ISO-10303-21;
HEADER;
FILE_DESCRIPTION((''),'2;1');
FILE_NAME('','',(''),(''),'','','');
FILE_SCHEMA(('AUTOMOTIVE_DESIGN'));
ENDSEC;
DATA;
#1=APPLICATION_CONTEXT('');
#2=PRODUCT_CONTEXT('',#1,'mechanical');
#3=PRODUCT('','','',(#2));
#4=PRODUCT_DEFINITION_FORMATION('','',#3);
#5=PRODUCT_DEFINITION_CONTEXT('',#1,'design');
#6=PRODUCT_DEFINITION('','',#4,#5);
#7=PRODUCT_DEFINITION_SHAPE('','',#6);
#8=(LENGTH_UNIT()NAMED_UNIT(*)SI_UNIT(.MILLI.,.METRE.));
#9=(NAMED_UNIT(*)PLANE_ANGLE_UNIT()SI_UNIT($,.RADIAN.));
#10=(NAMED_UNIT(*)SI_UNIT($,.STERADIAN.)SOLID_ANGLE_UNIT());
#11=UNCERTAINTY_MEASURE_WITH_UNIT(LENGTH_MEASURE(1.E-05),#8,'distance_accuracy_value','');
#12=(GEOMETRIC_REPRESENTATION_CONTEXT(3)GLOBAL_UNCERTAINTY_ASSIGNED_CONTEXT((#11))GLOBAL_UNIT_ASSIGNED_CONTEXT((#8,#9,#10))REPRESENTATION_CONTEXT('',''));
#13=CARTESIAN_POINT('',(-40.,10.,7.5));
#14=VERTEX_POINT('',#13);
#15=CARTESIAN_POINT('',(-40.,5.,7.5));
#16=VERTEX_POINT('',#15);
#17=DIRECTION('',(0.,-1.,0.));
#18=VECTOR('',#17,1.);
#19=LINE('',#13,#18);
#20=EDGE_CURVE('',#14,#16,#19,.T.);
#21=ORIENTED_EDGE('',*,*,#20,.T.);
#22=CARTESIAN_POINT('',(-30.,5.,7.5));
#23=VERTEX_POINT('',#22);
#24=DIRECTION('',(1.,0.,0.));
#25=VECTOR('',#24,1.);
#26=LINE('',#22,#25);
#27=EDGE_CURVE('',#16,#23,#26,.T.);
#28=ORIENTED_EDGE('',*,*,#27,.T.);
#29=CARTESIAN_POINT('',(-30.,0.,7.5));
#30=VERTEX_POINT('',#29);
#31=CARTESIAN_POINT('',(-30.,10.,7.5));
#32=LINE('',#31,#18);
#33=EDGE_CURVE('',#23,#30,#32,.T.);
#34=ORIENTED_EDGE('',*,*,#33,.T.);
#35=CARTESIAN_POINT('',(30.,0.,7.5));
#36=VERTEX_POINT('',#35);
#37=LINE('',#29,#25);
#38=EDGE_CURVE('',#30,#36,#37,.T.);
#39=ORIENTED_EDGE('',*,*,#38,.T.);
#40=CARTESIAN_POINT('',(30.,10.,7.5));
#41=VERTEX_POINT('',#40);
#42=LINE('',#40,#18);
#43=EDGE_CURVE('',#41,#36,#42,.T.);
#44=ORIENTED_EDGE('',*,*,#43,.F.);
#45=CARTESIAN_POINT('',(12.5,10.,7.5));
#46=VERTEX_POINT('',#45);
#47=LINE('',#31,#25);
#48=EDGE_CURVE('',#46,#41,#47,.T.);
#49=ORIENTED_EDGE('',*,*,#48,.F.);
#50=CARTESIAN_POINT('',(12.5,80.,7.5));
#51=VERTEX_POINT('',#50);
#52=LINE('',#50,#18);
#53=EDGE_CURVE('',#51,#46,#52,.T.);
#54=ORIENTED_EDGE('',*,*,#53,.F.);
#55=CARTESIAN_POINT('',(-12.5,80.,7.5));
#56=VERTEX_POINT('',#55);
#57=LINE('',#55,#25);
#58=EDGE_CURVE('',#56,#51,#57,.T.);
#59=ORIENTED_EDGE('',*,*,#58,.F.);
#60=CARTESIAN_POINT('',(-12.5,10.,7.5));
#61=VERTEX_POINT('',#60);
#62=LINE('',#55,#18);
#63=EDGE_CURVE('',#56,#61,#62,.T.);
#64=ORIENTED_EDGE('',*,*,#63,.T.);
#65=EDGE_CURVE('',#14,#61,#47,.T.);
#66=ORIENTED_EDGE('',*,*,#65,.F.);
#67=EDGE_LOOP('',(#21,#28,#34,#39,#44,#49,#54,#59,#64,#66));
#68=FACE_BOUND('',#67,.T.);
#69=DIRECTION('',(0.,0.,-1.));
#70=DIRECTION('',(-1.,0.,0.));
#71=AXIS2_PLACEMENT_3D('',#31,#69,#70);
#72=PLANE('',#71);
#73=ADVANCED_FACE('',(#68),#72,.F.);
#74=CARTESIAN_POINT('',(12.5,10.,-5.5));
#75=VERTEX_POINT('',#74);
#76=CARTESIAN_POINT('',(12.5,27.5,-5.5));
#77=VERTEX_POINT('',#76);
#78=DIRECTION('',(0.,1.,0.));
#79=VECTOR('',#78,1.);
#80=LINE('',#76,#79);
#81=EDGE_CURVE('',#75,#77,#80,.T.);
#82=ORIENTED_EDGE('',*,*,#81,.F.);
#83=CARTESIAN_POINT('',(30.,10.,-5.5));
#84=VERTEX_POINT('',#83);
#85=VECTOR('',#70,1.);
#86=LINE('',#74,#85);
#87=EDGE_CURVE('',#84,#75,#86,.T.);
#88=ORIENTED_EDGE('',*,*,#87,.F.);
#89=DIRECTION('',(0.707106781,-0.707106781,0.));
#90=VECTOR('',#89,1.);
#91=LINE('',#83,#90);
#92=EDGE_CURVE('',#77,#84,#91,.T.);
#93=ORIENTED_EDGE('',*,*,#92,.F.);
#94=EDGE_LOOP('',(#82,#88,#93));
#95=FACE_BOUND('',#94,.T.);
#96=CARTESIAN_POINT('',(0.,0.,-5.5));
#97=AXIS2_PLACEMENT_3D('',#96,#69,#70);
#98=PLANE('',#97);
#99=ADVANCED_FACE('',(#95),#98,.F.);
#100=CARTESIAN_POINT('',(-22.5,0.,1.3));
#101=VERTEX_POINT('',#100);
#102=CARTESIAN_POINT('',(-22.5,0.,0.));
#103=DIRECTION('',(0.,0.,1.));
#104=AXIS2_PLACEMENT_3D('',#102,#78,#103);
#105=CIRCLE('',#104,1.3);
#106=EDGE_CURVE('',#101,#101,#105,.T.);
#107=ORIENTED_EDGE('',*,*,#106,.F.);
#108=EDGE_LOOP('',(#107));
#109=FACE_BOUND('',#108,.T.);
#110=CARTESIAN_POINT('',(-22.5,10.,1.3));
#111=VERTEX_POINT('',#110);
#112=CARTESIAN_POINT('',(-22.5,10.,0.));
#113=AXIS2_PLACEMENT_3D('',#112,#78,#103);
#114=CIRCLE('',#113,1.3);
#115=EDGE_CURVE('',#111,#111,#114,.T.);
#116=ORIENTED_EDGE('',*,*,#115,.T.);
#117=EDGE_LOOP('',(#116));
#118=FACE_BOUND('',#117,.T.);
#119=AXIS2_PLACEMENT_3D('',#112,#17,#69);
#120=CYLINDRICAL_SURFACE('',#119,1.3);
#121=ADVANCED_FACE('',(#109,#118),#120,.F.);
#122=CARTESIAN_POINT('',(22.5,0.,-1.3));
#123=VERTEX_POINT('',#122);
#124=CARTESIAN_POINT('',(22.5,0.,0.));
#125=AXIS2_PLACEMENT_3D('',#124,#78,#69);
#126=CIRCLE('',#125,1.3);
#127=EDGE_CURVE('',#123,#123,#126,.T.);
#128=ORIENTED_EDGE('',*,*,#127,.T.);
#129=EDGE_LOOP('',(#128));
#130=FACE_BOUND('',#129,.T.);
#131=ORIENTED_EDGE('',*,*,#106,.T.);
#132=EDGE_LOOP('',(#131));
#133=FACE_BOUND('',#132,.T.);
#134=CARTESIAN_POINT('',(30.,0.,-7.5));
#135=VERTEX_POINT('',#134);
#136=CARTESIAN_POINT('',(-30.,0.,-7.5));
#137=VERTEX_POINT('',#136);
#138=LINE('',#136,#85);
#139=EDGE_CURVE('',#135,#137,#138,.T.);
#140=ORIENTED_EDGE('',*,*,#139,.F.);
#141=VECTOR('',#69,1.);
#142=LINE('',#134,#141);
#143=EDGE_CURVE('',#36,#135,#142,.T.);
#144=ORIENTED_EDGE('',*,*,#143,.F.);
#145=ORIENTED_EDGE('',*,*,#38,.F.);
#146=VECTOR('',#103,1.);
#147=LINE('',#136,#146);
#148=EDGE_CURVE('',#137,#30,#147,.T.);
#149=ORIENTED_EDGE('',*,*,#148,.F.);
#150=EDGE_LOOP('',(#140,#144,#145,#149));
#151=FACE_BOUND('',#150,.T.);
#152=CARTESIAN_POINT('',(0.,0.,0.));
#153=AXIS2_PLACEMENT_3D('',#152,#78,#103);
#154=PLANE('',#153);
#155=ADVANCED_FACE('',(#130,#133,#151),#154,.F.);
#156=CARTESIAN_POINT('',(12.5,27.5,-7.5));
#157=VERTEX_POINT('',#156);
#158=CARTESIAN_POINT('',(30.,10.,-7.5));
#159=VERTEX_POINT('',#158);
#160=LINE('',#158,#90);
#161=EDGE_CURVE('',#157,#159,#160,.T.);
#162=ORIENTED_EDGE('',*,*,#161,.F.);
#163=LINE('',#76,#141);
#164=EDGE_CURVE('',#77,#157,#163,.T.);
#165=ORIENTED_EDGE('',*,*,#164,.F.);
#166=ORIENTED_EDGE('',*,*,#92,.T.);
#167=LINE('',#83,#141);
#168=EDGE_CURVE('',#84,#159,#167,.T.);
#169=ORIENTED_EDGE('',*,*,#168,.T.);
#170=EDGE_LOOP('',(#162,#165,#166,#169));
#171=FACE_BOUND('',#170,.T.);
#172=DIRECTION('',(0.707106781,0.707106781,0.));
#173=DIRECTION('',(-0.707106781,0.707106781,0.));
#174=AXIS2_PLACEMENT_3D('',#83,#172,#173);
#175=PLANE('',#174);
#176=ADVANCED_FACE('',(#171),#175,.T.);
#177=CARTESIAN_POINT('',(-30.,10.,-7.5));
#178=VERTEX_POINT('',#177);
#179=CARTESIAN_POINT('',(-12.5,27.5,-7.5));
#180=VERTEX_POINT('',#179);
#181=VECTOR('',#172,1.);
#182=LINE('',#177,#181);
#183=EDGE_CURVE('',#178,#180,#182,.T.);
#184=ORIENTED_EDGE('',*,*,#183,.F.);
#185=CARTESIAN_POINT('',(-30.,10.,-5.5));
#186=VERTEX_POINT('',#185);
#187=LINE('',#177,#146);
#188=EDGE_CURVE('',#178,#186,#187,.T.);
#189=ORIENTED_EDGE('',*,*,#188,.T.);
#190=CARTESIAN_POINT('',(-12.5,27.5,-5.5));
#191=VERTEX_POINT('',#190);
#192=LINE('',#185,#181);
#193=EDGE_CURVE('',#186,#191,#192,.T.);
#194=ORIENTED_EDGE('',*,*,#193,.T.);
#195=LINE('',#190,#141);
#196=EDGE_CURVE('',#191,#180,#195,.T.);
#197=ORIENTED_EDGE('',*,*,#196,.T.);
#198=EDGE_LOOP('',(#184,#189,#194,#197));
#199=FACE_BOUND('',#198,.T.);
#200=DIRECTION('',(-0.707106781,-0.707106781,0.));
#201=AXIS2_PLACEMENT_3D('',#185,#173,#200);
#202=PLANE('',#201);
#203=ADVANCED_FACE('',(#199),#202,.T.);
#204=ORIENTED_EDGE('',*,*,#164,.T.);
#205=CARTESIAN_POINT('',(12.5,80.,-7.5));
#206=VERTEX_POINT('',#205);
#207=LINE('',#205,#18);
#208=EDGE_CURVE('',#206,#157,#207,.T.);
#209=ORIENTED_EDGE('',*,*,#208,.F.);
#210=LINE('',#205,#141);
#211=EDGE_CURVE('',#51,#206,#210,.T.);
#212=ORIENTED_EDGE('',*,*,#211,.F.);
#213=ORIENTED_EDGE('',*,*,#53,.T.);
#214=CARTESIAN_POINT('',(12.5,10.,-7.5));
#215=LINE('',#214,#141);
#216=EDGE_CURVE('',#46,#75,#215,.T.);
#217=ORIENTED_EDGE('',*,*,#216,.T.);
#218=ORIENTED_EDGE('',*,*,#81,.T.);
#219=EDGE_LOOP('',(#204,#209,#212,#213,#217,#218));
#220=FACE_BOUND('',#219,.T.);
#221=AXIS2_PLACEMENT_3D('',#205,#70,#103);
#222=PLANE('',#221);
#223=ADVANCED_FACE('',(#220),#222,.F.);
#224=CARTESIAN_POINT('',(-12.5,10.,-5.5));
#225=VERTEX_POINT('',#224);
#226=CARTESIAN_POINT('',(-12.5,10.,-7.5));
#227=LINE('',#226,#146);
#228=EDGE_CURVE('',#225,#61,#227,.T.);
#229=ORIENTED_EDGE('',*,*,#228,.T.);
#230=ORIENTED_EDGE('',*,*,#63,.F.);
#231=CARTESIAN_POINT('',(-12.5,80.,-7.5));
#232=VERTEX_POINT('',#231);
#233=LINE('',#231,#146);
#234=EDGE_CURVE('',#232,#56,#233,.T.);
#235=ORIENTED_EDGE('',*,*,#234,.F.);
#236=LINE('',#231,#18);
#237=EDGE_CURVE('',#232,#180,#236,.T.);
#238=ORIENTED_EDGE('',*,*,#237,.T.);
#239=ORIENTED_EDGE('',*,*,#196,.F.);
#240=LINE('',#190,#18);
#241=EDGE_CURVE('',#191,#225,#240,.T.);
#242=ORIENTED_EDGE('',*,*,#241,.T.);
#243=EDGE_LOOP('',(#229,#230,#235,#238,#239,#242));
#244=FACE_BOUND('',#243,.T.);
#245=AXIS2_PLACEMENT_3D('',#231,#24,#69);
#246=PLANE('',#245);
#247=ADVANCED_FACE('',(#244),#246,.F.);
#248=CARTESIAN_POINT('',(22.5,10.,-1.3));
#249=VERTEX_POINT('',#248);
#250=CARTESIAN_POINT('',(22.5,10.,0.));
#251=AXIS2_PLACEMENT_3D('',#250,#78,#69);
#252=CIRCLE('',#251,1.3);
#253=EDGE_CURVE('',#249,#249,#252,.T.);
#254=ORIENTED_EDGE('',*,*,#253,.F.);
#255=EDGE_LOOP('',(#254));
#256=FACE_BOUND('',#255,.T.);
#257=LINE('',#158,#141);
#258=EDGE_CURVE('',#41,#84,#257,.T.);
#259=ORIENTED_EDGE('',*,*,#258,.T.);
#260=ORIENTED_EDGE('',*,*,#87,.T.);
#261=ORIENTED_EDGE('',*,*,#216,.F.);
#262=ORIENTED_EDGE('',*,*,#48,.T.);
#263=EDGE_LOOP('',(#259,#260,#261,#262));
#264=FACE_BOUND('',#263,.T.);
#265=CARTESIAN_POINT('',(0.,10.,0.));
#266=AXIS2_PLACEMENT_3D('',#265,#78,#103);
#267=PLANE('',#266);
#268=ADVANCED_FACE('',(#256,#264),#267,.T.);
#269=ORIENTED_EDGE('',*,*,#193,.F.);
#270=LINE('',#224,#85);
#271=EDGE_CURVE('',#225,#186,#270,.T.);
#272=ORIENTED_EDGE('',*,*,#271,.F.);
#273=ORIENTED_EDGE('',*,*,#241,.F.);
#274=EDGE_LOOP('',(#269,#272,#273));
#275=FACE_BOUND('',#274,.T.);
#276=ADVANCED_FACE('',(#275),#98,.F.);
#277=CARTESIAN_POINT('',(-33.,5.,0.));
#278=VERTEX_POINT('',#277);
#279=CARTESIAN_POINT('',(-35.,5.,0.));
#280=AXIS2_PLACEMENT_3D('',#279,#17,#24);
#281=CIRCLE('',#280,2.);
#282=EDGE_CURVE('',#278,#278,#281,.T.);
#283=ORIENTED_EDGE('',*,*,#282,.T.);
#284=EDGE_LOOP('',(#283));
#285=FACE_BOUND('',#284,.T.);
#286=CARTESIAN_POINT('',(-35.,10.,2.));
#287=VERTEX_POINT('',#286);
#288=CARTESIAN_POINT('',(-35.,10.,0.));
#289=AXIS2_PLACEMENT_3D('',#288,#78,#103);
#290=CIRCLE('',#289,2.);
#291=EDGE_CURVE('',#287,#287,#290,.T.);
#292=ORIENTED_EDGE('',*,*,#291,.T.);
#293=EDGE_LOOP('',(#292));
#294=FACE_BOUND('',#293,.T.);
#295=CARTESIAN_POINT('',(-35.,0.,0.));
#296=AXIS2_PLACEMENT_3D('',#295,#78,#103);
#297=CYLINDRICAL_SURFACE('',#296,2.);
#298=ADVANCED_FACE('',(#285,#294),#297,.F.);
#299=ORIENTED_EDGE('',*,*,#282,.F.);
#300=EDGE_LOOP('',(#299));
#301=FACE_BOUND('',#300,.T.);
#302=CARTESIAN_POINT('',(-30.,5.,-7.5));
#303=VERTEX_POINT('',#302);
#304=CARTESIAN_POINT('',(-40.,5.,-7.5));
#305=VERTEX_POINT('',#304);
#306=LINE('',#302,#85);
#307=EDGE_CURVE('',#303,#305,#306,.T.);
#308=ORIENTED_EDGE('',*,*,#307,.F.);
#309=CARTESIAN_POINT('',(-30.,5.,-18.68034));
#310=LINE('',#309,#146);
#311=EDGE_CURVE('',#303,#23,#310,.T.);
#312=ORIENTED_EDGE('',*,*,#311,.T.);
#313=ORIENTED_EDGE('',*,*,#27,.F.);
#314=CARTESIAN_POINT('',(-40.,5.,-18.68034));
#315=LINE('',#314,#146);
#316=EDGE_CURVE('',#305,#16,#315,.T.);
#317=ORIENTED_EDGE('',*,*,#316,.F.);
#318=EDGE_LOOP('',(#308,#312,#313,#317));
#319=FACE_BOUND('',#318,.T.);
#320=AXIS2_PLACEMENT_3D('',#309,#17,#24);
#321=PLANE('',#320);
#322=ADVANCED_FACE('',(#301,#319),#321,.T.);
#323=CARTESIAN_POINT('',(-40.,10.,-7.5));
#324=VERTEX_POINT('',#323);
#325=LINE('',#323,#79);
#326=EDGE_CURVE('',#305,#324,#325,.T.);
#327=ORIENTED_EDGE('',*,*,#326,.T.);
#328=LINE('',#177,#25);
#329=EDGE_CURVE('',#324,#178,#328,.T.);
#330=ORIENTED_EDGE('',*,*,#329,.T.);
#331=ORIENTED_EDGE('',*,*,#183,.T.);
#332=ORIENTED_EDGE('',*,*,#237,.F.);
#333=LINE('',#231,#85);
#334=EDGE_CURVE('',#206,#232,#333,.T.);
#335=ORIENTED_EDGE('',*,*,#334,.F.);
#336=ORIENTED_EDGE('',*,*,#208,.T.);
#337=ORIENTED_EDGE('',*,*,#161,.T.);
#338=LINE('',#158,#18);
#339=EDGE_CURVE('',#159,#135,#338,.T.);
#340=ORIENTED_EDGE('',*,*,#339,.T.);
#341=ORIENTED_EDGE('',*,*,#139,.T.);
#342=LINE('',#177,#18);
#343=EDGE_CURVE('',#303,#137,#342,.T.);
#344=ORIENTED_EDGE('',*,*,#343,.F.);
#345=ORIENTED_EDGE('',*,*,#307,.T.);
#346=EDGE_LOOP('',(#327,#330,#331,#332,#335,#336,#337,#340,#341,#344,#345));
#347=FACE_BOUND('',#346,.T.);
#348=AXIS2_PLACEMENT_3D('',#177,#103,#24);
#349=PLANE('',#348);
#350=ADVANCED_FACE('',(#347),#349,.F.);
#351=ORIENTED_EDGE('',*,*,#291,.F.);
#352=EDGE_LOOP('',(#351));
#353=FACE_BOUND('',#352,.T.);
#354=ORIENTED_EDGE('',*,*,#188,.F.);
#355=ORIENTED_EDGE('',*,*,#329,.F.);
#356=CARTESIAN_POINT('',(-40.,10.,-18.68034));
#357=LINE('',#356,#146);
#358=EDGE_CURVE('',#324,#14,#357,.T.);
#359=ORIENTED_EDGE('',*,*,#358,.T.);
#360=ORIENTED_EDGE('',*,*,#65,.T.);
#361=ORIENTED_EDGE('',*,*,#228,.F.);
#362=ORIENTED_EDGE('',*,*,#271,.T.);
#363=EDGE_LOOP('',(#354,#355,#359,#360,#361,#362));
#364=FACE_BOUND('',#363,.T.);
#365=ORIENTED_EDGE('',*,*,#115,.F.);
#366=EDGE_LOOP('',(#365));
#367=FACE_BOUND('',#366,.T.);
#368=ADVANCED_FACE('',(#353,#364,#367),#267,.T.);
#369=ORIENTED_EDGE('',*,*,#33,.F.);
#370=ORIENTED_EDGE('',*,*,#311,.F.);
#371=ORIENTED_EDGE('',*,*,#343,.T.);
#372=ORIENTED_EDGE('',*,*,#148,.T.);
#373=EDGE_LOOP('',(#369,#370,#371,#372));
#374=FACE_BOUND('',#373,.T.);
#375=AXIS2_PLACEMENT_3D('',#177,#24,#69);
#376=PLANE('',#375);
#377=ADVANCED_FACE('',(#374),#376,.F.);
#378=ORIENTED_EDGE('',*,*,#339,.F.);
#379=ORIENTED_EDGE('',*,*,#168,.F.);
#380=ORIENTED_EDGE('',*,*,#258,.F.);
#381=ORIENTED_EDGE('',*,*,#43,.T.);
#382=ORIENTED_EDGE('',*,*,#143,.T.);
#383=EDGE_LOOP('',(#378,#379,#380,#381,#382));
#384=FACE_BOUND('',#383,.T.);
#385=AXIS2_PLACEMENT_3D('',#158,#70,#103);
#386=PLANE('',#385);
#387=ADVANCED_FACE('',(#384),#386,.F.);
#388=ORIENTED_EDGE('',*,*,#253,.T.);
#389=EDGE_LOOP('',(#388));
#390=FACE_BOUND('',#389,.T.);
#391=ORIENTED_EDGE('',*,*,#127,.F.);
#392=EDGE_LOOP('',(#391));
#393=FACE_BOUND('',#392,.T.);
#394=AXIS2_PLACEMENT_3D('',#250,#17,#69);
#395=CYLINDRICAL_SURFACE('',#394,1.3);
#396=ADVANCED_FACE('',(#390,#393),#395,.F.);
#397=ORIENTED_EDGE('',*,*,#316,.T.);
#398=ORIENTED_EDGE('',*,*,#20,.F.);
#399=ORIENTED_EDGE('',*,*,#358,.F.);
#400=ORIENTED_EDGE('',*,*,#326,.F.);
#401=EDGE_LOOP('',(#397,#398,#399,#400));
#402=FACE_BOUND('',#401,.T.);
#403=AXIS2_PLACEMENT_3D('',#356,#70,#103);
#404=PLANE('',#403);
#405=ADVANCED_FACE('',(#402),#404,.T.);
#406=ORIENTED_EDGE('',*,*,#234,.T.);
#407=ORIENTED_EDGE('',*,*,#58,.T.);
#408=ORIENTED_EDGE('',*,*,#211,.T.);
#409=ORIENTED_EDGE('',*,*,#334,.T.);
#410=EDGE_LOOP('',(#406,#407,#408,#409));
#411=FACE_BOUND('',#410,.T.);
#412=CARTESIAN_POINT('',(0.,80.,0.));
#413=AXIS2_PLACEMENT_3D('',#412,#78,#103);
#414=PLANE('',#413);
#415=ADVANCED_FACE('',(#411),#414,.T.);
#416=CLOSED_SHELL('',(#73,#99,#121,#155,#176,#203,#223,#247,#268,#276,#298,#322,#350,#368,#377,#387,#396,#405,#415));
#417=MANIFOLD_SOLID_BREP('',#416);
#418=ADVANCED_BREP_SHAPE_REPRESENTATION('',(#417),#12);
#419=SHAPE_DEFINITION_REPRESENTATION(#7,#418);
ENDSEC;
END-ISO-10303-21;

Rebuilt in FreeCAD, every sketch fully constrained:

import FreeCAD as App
import Part
import Sketcher

V = App.Vector

doc = App.newDocument("Part")
body = doc.addObject("PartDesign::Body", "Body")

# Sketch on XZ plane
sketch1 = body.newObject("Sketcher::SketchObject", "Sketch")
sketch1.AttachmentSupport = (doc.getObject("XZ_Plane"), [""])
sketch1.MapMode = "FlatFace"
sketch1.addGeometry([
    Part.LineSegment(V(-30, -7.5, 0), V(-30, 7.5, 0)),  # 0
    Part.LineSegment(V(-30, 7.5, 0), V(30, 7.5, 0)),  # 1
    Part.LineSegment(V(30, 7.5, 0), V(30, -7.5, 0)),  # 2
    Part.LineSegment(V(30, -7.5, 0), V(-30, -7.5, 0)),  # 3
    Part.Circle(V(-22.5, 0, 0), V(0, 0, 1), 1.3),  # 4
    Part.Circle(V(22.5, 0, 0), V(0, 0, 1), 1.3),  # 5
], False)
sketch1.addConstraint([
    Sketcher.Constraint("Coincident", 0, 2, 1, 1),
    Sketcher.Constraint("Coincident", 1, 2, 2, 1),
    Sketcher.Constraint("Coincident", 2, 2, 3, 1),
    Sketcher.Constraint("Coincident", 3, 2, 0, 1),
    Sketcher.Constraint("Vertical", 0),
    Sketcher.Constraint("Horizontal", 1),
    Sketcher.Constraint("Vertical", 2),
    Sketcher.Constraint("Horizontal", 3),
    Sketcher.Constraint("Equal", 4, 5),
    Sketcher.Constraint("Symmetric", 4, 3, 5, 3, -1, 1),
    Sketcher.Constraint("Symmetric", 0, 2, 2, 2, -1, 1),
    Sketcher.Constraint("PointOnObject", 4, 3, -1),
    Sketcher.Constraint("Diameter", 4, 2.6),
    Sketcher.Constraint("DistanceX", 1, 1, 1, 2, 60.0),
    Sketcher.Constraint("DistanceY", 0, 1, 0, 2, 15.0),
    Sketcher.Constraint("DistanceX", 4, 3, 5, 3, 45.0),
])
pad1 = body.newObject("PartDesign::Pad", "Pad")
pad1.Profile = sketch1
pad1.Length = 10
pad1.Reversed = True

# Sketch on XZ plane
sketch2 = body.newObject("Sketcher::SketchObject", "Sketch001")
sketch2.AttachmentSupport = (doc.getObject("XZ_Plane"), [""])
sketch2.MapMode = "FlatFace"
sketch2.AttachmentOffset = App.Placement(V(0, 0, -10), App.Rotation())
sketch2.addGeometry([
    Part.LineSegment(V(-12, -8, 0), V(-12, 8, 0)),
    Part.LineSegment(V(-12, 8, 0), V(12, 8, 0)),
    Part.LineSegment(V(12, 8, 0), V(12, -8, 0)),
    Part.LineSegment(V(12, -8, 0), V(-12, -8, 0)),
], False)
sketch2.addConstraint([
    Sketcher.Constraint("Coincident", 0, 2, 1, 1),
    Sketcher.Constraint("Coincident", 1, 2, 2, 1),
    Sketcher.Constraint("Coincident", 2, 2, 3, 1),
    Sketcher.Constraint("Coincident", 3, 2, 0, 1),
    Sketcher.Constraint("Vertical", 0),
    Sketcher.Constraint("Horizontal", 1),
    Sketcher.Constraint("Vertical", 2),
    Sketcher.Constraint("Horizontal", 3),
    Sketcher.Constraint("Symmetric", 0, 2, 2, 2, -1, 1),
    Sketcher.Constraint("DistanceX", 1, 1, 1, 2, 25.0),
    Sketcher.Constraint("DistanceY", 0, 1, 0, 2, 15.0),
])
pad2 = body.newObject("PartDesign::Pad", "Pad001")
pad2.Profile = sketch2
pad2.Length = 70
pad2.Reversed = True

# Sketch on XY plane
sketch3 = body.newObject("Sketcher::SketchObject", "Sketch002")
sketch3.AttachmentSupport = (doc.getObject("XY_Plane"), [""])
sketch3.MapMode = "FlatFace"
sketch3.AttachmentOffset = App.Placement(V(0, 0, -7.5), App.Rotation())
sketch3.addGeometry([
    Part.LineSegment(V(12, 28, 0), V(30, 10, 0)),  # 0
    Part.LineSegment(V(30, 10, 0), V(12, 10, 0)),  # 1
    Part.LineSegment(V(12, 10, 0), V(12, 28, 0)),  # 2
    Part.LineSegment(V(-12, 28, 0), V(-12, 10, 0)),  # 3
    Part.LineSegment(V(-12, 10, 0), V(-30, 10, 0)),  # 4
    Part.LineSegment(V(-30, 10, 0), V(-12, 28, 0)),  # 5
], False)
sketch3.addConstraint([
    Sketcher.Constraint("Coincident", 0, 2, 1, 1),
    Sketcher.Constraint("Coincident", 1, 2, 2, 1),
    Sketcher.Constraint("Coincident", 2, 2, 0, 1),
    Sketcher.Constraint("Coincident", 3, 2, 4, 1),
    Sketcher.Constraint("Coincident", 4, 2, 5, 1),
    Sketcher.Constraint("Coincident", 5, 2, 3, 1),
    Sketcher.Constraint("Horizontal", 1),
    Sketcher.Constraint("Vertical", 2),
    Sketcher.Constraint("Vertical", 3),
    Sketcher.Constraint("Horizontal", 4),
    Sketcher.Constraint("Symmetric", 1, 2, 3, 2, -2),
    Sketcher.Constraint("Perpendicular", 0, 5),
    Sketcher.Constraint("Horizontal", 2, 2, 5, 2),
    Sketcher.Constraint("Equal", 1, 4),
    Sketcher.Constraint("DistanceX", 1, 2, 1, 1, 17.5),
    Sketcher.Constraint("DistanceX", -1, 1, 0, 2, 30.0),
    Sketcher.Constraint("DistanceY", -1, 1, 0, 2, 10.0),
])
pad3 = body.newObject("PartDesign::Pad", "Pad002")
pad3.Profile = sketch3
pad3.Length = 2

# Sketch on XY plane
sketch4 = body.newObject("Sketcher::SketchObject", "Sketch003")
sketch4.AttachmentSupport = (doc.getObject("XY_Plane"), [""])
sketch4.MapMode = "FlatFace"
sketch4.AttachmentOffset = App.Placement(V(0, 0, 7.5), App.Rotation())
sketch4.addGeometry([
    Part.LineSegment(V(-40, 10, 0), V(-40, 5, 0)),
    Part.LineSegment(V(-40, 5, 0), V(-30, 5, 0)),
    Part.LineSegment(V(-30, 5, 0), V(-30, 10, 0)),
    Part.LineSegment(V(-30, 10, 0), V(-40, 10, 0)),
], False)
sketch4.addConstraint([
    Sketcher.Constraint("Coincident", 0, 2, 1, 1),
    Sketcher.Constraint("Coincident", 1, 2, 2, 1),
    Sketcher.Constraint("Coincident", 2, 2, 3, 1),
    Sketcher.Constraint("Coincident", 3, 2, 0, 1),
    Sketcher.Constraint("Vertical", 0),
    Sketcher.Constraint("Horizontal", 1),
    Sketcher.Constraint("Vertical", 2),
    Sketcher.Constraint("Horizontal", 3),
    Sketcher.Constraint("DistanceX", 1, 1, 1, 2, 10.0),
    Sketcher.Constraint("DistanceY", 0, 2, 0, 1, 5.0),
    Sketcher.Constraint("DistanceX", 0, 2, -1, 1, 40.0),
    Sketcher.Constraint("DistanceY", -1, 1, 0, 2, 5.0),
])
pad4 = body.newObject("PartDesign::Pad", "Pad003")
pad4.Profile = sketch4
pad4.Length = 15
pad4.Reversed = True

# Sketch on XZ plane
sketch5 = body.newObject("Sketcher::SketchObject", "Sketch004")
sketch5.AttachmentSupport = (doc.getObject("XZ_Plane"), [""])
sketch5.MapMode = "FlatFace"
sketch5.AttachmentOffset = App.Placement(V(0, 0, -10), App.Rotation())
sketch5.addGeometry(Part.Circle(V(-35, 0, 0), V(0, 0, 1), 2), False)
sketch5.addConstraint([
    Sketcher.Constraint("PointOnObject", 0, 3, -1),
    Sketcher.Constraint("Diameter", 0, 4.0),
    Sketcher.Constraint("DistanceX", 0, 3, -1, 1, 35.0),
])
pocket1 = body.newObject("PartDesign::Pocket", "Pocket")
pocket1.Profile = sketch5
pocket1.Type = "ThroughAll"
pocket1.Reversed = True

doc.recompute()
